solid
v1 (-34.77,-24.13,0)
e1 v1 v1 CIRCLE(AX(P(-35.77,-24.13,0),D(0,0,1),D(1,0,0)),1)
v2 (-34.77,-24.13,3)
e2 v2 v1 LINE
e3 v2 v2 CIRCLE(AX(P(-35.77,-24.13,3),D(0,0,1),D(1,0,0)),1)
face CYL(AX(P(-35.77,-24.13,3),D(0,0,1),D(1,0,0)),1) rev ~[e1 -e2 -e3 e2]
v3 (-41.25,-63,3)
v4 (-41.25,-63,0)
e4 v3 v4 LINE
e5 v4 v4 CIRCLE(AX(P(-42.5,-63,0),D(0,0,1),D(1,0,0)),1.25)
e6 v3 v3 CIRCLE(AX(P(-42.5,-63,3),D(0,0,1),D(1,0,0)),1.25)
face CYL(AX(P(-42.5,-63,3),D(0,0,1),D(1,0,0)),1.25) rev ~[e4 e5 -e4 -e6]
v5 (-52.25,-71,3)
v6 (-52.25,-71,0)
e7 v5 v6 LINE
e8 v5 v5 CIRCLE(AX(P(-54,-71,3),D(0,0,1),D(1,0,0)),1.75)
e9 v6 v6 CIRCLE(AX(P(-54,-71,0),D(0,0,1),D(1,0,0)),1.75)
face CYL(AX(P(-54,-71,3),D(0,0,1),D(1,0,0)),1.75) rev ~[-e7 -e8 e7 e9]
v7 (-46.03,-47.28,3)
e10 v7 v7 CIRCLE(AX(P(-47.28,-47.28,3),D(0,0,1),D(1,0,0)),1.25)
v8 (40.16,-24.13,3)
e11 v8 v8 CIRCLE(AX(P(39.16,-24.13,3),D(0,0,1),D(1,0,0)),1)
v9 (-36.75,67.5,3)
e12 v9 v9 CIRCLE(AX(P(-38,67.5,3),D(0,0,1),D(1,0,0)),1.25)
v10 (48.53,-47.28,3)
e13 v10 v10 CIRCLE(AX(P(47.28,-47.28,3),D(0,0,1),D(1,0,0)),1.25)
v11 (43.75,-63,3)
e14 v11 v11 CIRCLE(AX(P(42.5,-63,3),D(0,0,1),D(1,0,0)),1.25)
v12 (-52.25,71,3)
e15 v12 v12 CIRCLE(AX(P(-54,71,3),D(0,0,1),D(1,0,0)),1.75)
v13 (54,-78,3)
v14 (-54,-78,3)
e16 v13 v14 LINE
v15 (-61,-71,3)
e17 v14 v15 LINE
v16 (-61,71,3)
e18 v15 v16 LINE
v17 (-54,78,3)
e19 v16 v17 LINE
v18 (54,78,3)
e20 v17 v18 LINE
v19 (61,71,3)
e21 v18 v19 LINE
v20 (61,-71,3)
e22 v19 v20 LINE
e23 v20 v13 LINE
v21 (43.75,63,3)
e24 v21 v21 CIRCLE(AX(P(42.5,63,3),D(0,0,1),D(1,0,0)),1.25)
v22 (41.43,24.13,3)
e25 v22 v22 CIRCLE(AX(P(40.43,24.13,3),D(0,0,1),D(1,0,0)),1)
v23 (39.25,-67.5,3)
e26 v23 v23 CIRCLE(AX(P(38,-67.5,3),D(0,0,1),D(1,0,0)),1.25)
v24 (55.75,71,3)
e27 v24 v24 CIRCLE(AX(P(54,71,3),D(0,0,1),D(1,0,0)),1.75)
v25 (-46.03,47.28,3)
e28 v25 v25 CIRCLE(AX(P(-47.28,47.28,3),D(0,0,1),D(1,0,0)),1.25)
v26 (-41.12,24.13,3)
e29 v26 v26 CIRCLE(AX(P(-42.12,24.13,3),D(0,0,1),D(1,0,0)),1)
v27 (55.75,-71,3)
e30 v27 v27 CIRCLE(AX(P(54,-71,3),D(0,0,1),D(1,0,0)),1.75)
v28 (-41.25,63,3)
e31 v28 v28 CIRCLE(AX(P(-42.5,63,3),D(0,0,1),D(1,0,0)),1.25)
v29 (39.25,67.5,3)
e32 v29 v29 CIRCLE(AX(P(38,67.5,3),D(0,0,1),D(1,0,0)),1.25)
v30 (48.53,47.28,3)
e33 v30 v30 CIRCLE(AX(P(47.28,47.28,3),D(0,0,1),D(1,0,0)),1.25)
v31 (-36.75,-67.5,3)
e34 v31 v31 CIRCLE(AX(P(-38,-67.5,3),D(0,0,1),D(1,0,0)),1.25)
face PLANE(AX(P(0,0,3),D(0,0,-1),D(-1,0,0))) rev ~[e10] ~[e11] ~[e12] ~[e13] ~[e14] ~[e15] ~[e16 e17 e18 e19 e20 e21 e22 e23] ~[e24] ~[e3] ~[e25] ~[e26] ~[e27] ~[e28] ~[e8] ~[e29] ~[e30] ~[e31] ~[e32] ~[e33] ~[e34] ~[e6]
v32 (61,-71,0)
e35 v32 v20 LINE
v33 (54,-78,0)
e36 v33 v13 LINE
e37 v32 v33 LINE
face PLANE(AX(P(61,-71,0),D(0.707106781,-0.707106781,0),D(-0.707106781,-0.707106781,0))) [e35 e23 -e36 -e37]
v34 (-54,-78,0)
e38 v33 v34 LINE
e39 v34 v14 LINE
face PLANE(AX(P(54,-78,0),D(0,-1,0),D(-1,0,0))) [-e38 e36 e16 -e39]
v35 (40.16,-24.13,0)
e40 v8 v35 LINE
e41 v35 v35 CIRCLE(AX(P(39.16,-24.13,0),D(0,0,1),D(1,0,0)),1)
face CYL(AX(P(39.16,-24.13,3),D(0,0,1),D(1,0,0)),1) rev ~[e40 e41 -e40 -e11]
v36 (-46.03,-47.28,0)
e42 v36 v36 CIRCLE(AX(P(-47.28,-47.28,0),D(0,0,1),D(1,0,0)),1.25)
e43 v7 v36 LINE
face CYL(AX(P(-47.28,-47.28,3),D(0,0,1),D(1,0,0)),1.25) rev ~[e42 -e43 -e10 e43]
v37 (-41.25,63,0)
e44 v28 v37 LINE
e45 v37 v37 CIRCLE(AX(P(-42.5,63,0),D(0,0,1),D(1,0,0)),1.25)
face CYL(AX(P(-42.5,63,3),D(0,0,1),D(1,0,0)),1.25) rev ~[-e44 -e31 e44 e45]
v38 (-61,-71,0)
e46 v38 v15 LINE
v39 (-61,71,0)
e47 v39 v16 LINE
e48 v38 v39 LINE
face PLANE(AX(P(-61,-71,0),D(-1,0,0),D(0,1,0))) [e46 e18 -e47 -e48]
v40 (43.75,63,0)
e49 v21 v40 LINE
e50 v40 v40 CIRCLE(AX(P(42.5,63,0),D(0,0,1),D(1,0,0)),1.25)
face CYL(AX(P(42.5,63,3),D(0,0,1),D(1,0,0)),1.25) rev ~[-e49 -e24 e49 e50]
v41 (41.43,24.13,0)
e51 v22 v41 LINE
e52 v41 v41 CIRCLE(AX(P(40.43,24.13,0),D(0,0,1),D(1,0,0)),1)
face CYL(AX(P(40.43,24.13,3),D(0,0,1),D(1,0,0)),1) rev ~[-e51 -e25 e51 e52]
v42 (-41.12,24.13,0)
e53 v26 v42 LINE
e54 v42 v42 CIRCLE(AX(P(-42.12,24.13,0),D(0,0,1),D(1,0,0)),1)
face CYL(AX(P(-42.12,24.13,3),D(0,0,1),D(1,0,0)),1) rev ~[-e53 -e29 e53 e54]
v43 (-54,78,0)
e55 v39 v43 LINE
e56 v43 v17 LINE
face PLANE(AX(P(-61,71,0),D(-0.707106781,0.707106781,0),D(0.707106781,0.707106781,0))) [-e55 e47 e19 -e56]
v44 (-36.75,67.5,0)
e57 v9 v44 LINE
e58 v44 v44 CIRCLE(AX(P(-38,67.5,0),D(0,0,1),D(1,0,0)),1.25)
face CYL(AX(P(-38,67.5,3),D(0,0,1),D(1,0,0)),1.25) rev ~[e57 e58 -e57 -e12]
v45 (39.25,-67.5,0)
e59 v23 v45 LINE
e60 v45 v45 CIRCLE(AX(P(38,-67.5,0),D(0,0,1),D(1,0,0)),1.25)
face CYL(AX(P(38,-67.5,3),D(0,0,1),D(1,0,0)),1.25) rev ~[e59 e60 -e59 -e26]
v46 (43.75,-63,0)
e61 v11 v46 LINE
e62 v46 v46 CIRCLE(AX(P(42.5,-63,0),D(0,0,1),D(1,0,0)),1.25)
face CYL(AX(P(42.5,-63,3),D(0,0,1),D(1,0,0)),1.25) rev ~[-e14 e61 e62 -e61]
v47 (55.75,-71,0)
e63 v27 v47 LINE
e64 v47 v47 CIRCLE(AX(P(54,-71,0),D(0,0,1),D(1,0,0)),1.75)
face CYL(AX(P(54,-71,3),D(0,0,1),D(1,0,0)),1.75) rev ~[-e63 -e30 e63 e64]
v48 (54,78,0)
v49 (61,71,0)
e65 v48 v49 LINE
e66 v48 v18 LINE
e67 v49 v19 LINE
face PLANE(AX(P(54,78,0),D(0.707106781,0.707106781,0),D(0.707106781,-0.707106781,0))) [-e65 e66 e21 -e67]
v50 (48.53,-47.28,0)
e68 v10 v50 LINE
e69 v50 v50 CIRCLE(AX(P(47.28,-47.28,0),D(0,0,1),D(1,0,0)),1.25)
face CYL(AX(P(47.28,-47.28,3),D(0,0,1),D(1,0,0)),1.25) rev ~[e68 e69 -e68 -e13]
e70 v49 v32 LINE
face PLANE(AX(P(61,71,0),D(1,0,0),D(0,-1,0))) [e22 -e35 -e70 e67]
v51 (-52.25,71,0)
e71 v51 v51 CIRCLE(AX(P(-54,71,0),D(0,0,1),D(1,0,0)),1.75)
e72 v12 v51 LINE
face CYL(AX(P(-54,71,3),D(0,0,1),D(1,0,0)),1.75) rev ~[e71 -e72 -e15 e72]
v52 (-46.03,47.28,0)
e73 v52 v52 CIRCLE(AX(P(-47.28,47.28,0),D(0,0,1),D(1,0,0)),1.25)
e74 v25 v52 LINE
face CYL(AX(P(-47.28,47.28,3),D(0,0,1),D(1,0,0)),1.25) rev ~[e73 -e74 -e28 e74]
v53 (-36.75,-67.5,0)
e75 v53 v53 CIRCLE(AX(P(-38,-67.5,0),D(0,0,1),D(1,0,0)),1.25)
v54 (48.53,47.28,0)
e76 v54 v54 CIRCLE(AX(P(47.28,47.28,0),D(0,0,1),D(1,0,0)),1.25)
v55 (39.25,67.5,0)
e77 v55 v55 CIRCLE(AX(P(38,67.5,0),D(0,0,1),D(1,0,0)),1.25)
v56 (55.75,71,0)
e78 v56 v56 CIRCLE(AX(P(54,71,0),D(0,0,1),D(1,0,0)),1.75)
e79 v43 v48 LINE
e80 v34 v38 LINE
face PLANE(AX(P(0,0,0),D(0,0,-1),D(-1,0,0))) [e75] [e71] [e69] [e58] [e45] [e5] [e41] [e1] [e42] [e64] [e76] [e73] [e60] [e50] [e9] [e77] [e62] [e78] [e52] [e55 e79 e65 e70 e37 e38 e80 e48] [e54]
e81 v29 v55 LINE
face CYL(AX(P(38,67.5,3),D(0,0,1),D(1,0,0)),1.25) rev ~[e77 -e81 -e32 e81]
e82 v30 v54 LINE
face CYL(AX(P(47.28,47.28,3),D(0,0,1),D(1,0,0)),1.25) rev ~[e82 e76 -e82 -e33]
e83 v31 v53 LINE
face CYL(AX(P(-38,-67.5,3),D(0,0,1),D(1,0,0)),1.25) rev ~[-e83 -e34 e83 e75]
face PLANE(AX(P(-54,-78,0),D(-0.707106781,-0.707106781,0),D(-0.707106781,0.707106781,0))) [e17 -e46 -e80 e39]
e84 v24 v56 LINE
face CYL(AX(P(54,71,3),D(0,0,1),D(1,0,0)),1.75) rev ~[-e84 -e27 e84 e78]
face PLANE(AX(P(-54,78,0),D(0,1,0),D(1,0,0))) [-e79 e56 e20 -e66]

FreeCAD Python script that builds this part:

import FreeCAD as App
import Part
import Sketcher


def add_polygon(sketch, points):
    """Adds a closed chain of lines whose ends are joined by coincident constraints."""
    first, n = sketch.GeometryCount, len(points)
    for a, b in zip(points, points[1:] + points[:1]):
        sketch.addGeometry(Part.LineSegment(App.Vector(*a, 0), App.Vector(*b, 0)), False)
    for i in range(n):
        sketch.addConstraint(Sketcher.Constraint("Coincident", first + i, 2, first + (i + 1) % n, 1))

doc = App.newDocument("Part")
body = doc.addObject("PartDesign::Body", "Body")

sketch1 = body.newObject("Sketcher::SketchObject", "Sketch")
sketch1.AttachmentSupport = (doc.getObject("XY_Plane"), [""])
sketch1.MapMode = "FlatFace"
add_polygon(sketch1, [(-54, 78), (-61, 71), (-61, -71), (-54, -78), (54, -78), (61, -71), (61, 71), (54, 78)])
sketch1.addConstraint([
    Sketcher.Constraint("Vertical", 1),
    Sketcher.Constraint("Horizontal", 3),
    Sketcher.Constraint("Vertical", 5),
    Sketcher.Constraint("Horizontal", 7),
    Sketcher.Constraint("Symmetric", 0, 2, 4, 2, -1, 1),
    Sketcher.Constraint("Symmetric", 2, 2, 6, 2, -1, 1),
    Sketcher.Constraint("Perpendicular", 0, 2),
    Sketcher.Constraint("Perpendicular", 2, 4),
    Sketcher.Constraint("Perpendicular", 4, 6),
    Sketcher.Constraint("Horizontal", 1, 2, 4, 2),
    Sketcher.Constraint("Vertical", 3, 2, 6, 2),
    Sketcher.Constraint("DistanceX", 3, 1, 3, 2, 108.0),
    Sketcher.Constraint("DistanceY", 1, 2, 1, 1, 142.0),
    Sketcher.Constraint("DistanceX", 0, 2, -1, 1, 61.0),
])
pad1 = body.newObject("PartDesign::Pad", "Pad")
pad1.Profile = sketch1
pad1.Length = 3

sketch2 = body.newObject("Sketcher::SketchObject", "Sketch001")
sketch2.AttachmentSupport = (doc.getObject("XY_Plane"), [""])
sketch2.MapMode = "FlatFace"
sketch2.AttachmentOffset = App.Placement(App.Vector(0, 0, 3), App.Rotation())
sketch2.addGeometry([
    Part.Circle(App.Vector(-42.5, 63, 0), App.Vector(0, 0, 1), 1.2),
    Part.Circle(App.Vector(42.5, 63, 0), App.Vector(0, 0, 1), 1.2),
    Part.Circle(App.Vector(-42.5, -63, 0), App.Vector(0, 0, 1), 1.2),
    Part.Circle(App.Vector(42.5, -63, 0), App.Vector(0, 0, 1), 1.2),
], False)
sketch2.addConstraint([
    Sketcher.Constraint("Equal", 0, 1),
    Sketcher.Constraint("Equal", 1, 2),
    Sketcher.Constraint("Equal", 2, 3),
    Sketcher.Constraint("Symmetric", 1, 3, 2, 3, -1, 1),
    Sketcher.Constraint("Symmetric", 0, 3, 3, 3, -1, 1),
    Sketcher.Constraint("Symmetric", 0, 3, 1, 3, -2),
    Sketcher.Constraint("Diameter", 0, 2.5),
    Sketcher.Constraint("DistanceY", -1, 1, 0, 3, 63.0),
    Sketcher.Constraint("DistanceX", 0, 3, 1, 3, 85.0),
])
pocket1 = body.newObject("PartDesign::Pocket", "Pocket")
pocket1.Profile = sketch2
pocket1.Type = "ThroughAll"

sketch3 = body.newObject("Sketcher::SketchObject", "Sketch002")
sketch3.AttachmentSupport = (doc.getObject("XY_Plane"), [""])
sketch3.MapMode = "FlatFace"
sketch3.AttachmentOffset = App.Placement(App.Vector(0, 0, 3), App.Rotation())
sketch3.addGeometry([
    Part.Circle(App.Vector(-38, 67.5, 0), App.Vector(0, 0, 1), 1.2),
    Part.Circle(App.Vector(38, 67.5, 0), App.Vector(0, 0, 1), 1.2),
    Part.Circle(App.Vector(38, -67.5, 0), App.Vector(0, 0, 1), 1.2),
    Part.Circle(App.Vector(-38, -67.5, 0), App.Vector(0, 0, 1), 1.2),
], False)
sketch3.addConstraint([
    Sketcher.Constraint("Equal", 0, 1),
    Sketcher.Constraint("Equal", 1, 2),
    Sketcher.Constraint("Equal", 2, 3),
    Sketcher.Constraint("Symmetric", 0, 3, 2, 3, -1, 1),
    Sketcher.Constraint("Symmetric", 1, 3, 3, 3, -1, 1),
    Sketcher.Constraint("Symmetric", 0, 3, 1, 3, -2),
    Sketcher.Constraint("Diameter", 0, 2.5),
    Sketcher.Constraint("DistanceX", 0, 3, -1, 1, 38.0),
    Sketcher.Constraint("DistanceY", 2, 3, 1, 3, 135.0),
])
pocket2 = body.newObject("PartDesign::Pocket", "Pocket001")
pocket2.Profile = sketch3
pocket2.Type = "ThroughAll"

sketch4 = body.newObject("Sketcher::SketchObject", "Sketch003")
sketch4.AttachmentSupport = (doc.getObject("XY_Plane"), [""])
sketch4.MapMode = "FlatFace"
sketch4.AttachmentOffset = App.Placement(App.Vector(0, 0, 3), App.Rotation())
sketch4.addGeometry([
    Part.Circle(App.Vector(-42.1, 24.1, 0), App.Vector(0, 0, 1), 1),
    Part.Circle(App.Vector(-35.8, -24.1, 0), App.Vector(0, 0, 1), 1),
    Part.Circle(App.Vector(40.4, 24.1, 0), App.Vector(0, 0, 1), 1),
    Part.Circle(App.Vector(39.2, -24.1, 0), App.Vector(0, 0, 1), 1),
], False)
sketch4.addConstraint([
    Sketcher.Constraint("Equal", 0, 1),
    Sketcher.Constraint("Equal", 1, 2),
    Sketcher.Constraint("Equal", 2, 3),
    Sketcher.Constraint("Horizontal", 0, 3, 2, 3),
    Sketcher.Constraint("Horizontal", 1, 3, 3, 3),
    Sketcher.Constraint("Diameter", 0, 2.0),
    Sketcher.Constraint("DistanceX", 1, 3, 2, 3, 76.2),
    Sketcher.Constraint("DistanceX", 0, 3, -1, 1, 42.12),
    Sketcher.Constraint("DistanceY", -1, 1, 0, 3, 24.13),
    Sketcher.Constraint("DistanceX", 1, 3, -1, 1, 35.77),
    Sketcher.Constraint("DistanceY", 1, 3, -1, 1, 24.13),
    Sketcher.Constraint("DistanceX", -1, 1, 3, 3, 39.16),
])
pocket3 = body.newObject("PartDesign::Pocket", "Pocket002")
pocket3.Profile = sketch4
pocket3.Type = "ThroughAll"

sketch5 = body.newObject("Sketcher::SketchObject", "Sketch004")
sketch5.AttachmentSupport = (doc.getObject("XY_Plane"), [""])
sketch5.MapMode = "FlatFace"
sketch5.AttachmentOffset = App.Placement(App.Vector(0, 0, 3), App.Rotation())
sketch5.addGeometry([
    Part.Circle(App.Vector(-47.3, 47.3, 0), App.Vector(0, 0, 1), 1.2),
    Part.Circle(App.Vector(47.3, 47.3, 0), App.Vector(0, 0, 1), 1.2),
    Part.Circle(App.Vector(-47.3, -47.3, 0), App.Vector(0, 0, 1), 1.2),
    Part.Circle(App.Vector(47.3, -47.3, 0), App.Vector(0, 0, 1), 1.2),
], False)
sketch5.addConstraint([
    Sketcher.Constraint("Equal", 0, 1),
    Sketcher.Constraint("Equal", 1, 2),
    Sketcher.Constraint("Equal", 2, 3),
    Sketcher.Constraint("Symmetric", 1, 3, 2, 3, -1, 1),
    Sketcher.Constraint("Symmetric", 0, 3, 3, 3, -1, 1),
    Sketcher.Constraint("Symmetric", 0, 3, 1, 3, -2),
    Sketcher.Constraint("Diameter", 0, 2.5),
    Sketcher.Constraint("DistanceX", 0, 3, -1, 1, 47.28),
    Sketcher.Constraint("DistanceY", -1, 1, 0, 3, 47.28),
])
pocket4 = body.newObject("PartDesign::Pocket", "Pocket003")
pocket4.Profile = sketch5
pocket4.Type = "ThroughAll"

sketch6 = body.newObject("Sketcher::SketchObject", "Sketch005")
sketch6.AttachmentSupport = (doc.getObject("XY_Plane"), [""])
sketch6.MapMode = "FlatFace"
sketch6.AttachmentOffset = App.Placement(App.Vector(0, 0, 3), App.Rotation())
sketch6.addGeometry([
    Part.Circle(App.Vector(-54, 71, 0), App.Vector(0, 0, 1), 1.8),
    Part.Circle(App.Vector(54, 71, 0), App.Vector(0, 0, 1), 1.8),
    Part.Circle(App.Vector(-54, -71, 0), App.Vector(0, 0, 1), 1.8),
    Part.Circle(App.Vector(54, -71, 0), App.Vector(0, 0, 1), 1.8),
], False)
sketch6.addConstraint([
    Sketcher.Constraint("Equal", 0, 1),
    Sketcher.Constraint("Equal", 1, 2),
    Sketcher.Constraint("Equal", 2, 3),
    Sketcher.Constraint("Symmetric", 1, 3, 2, 3, -1, 1),
    Sketcher.Constraint("Symmetric", 0, 3, 3, 3, -1, 1),
    Sketcher.Constraint("Symmetric", 0, 3, 1, 3, -2),
    Sketcher.Constraint("Diameter", 0, 3.5),
    Sketcher.Constraint("DistanceX", 0, 3, -1, 1, 54.0),
    Sketcher.Constraint("DistanceY", -1, 1, 0, 3, 71.0),
])
pocket5 = body.newObject("PartDesign::Pocket", "Pocket004")
pocket5.Profile = sketch6
pocket5.Type = "ThroughAll"

doc.recompute()
